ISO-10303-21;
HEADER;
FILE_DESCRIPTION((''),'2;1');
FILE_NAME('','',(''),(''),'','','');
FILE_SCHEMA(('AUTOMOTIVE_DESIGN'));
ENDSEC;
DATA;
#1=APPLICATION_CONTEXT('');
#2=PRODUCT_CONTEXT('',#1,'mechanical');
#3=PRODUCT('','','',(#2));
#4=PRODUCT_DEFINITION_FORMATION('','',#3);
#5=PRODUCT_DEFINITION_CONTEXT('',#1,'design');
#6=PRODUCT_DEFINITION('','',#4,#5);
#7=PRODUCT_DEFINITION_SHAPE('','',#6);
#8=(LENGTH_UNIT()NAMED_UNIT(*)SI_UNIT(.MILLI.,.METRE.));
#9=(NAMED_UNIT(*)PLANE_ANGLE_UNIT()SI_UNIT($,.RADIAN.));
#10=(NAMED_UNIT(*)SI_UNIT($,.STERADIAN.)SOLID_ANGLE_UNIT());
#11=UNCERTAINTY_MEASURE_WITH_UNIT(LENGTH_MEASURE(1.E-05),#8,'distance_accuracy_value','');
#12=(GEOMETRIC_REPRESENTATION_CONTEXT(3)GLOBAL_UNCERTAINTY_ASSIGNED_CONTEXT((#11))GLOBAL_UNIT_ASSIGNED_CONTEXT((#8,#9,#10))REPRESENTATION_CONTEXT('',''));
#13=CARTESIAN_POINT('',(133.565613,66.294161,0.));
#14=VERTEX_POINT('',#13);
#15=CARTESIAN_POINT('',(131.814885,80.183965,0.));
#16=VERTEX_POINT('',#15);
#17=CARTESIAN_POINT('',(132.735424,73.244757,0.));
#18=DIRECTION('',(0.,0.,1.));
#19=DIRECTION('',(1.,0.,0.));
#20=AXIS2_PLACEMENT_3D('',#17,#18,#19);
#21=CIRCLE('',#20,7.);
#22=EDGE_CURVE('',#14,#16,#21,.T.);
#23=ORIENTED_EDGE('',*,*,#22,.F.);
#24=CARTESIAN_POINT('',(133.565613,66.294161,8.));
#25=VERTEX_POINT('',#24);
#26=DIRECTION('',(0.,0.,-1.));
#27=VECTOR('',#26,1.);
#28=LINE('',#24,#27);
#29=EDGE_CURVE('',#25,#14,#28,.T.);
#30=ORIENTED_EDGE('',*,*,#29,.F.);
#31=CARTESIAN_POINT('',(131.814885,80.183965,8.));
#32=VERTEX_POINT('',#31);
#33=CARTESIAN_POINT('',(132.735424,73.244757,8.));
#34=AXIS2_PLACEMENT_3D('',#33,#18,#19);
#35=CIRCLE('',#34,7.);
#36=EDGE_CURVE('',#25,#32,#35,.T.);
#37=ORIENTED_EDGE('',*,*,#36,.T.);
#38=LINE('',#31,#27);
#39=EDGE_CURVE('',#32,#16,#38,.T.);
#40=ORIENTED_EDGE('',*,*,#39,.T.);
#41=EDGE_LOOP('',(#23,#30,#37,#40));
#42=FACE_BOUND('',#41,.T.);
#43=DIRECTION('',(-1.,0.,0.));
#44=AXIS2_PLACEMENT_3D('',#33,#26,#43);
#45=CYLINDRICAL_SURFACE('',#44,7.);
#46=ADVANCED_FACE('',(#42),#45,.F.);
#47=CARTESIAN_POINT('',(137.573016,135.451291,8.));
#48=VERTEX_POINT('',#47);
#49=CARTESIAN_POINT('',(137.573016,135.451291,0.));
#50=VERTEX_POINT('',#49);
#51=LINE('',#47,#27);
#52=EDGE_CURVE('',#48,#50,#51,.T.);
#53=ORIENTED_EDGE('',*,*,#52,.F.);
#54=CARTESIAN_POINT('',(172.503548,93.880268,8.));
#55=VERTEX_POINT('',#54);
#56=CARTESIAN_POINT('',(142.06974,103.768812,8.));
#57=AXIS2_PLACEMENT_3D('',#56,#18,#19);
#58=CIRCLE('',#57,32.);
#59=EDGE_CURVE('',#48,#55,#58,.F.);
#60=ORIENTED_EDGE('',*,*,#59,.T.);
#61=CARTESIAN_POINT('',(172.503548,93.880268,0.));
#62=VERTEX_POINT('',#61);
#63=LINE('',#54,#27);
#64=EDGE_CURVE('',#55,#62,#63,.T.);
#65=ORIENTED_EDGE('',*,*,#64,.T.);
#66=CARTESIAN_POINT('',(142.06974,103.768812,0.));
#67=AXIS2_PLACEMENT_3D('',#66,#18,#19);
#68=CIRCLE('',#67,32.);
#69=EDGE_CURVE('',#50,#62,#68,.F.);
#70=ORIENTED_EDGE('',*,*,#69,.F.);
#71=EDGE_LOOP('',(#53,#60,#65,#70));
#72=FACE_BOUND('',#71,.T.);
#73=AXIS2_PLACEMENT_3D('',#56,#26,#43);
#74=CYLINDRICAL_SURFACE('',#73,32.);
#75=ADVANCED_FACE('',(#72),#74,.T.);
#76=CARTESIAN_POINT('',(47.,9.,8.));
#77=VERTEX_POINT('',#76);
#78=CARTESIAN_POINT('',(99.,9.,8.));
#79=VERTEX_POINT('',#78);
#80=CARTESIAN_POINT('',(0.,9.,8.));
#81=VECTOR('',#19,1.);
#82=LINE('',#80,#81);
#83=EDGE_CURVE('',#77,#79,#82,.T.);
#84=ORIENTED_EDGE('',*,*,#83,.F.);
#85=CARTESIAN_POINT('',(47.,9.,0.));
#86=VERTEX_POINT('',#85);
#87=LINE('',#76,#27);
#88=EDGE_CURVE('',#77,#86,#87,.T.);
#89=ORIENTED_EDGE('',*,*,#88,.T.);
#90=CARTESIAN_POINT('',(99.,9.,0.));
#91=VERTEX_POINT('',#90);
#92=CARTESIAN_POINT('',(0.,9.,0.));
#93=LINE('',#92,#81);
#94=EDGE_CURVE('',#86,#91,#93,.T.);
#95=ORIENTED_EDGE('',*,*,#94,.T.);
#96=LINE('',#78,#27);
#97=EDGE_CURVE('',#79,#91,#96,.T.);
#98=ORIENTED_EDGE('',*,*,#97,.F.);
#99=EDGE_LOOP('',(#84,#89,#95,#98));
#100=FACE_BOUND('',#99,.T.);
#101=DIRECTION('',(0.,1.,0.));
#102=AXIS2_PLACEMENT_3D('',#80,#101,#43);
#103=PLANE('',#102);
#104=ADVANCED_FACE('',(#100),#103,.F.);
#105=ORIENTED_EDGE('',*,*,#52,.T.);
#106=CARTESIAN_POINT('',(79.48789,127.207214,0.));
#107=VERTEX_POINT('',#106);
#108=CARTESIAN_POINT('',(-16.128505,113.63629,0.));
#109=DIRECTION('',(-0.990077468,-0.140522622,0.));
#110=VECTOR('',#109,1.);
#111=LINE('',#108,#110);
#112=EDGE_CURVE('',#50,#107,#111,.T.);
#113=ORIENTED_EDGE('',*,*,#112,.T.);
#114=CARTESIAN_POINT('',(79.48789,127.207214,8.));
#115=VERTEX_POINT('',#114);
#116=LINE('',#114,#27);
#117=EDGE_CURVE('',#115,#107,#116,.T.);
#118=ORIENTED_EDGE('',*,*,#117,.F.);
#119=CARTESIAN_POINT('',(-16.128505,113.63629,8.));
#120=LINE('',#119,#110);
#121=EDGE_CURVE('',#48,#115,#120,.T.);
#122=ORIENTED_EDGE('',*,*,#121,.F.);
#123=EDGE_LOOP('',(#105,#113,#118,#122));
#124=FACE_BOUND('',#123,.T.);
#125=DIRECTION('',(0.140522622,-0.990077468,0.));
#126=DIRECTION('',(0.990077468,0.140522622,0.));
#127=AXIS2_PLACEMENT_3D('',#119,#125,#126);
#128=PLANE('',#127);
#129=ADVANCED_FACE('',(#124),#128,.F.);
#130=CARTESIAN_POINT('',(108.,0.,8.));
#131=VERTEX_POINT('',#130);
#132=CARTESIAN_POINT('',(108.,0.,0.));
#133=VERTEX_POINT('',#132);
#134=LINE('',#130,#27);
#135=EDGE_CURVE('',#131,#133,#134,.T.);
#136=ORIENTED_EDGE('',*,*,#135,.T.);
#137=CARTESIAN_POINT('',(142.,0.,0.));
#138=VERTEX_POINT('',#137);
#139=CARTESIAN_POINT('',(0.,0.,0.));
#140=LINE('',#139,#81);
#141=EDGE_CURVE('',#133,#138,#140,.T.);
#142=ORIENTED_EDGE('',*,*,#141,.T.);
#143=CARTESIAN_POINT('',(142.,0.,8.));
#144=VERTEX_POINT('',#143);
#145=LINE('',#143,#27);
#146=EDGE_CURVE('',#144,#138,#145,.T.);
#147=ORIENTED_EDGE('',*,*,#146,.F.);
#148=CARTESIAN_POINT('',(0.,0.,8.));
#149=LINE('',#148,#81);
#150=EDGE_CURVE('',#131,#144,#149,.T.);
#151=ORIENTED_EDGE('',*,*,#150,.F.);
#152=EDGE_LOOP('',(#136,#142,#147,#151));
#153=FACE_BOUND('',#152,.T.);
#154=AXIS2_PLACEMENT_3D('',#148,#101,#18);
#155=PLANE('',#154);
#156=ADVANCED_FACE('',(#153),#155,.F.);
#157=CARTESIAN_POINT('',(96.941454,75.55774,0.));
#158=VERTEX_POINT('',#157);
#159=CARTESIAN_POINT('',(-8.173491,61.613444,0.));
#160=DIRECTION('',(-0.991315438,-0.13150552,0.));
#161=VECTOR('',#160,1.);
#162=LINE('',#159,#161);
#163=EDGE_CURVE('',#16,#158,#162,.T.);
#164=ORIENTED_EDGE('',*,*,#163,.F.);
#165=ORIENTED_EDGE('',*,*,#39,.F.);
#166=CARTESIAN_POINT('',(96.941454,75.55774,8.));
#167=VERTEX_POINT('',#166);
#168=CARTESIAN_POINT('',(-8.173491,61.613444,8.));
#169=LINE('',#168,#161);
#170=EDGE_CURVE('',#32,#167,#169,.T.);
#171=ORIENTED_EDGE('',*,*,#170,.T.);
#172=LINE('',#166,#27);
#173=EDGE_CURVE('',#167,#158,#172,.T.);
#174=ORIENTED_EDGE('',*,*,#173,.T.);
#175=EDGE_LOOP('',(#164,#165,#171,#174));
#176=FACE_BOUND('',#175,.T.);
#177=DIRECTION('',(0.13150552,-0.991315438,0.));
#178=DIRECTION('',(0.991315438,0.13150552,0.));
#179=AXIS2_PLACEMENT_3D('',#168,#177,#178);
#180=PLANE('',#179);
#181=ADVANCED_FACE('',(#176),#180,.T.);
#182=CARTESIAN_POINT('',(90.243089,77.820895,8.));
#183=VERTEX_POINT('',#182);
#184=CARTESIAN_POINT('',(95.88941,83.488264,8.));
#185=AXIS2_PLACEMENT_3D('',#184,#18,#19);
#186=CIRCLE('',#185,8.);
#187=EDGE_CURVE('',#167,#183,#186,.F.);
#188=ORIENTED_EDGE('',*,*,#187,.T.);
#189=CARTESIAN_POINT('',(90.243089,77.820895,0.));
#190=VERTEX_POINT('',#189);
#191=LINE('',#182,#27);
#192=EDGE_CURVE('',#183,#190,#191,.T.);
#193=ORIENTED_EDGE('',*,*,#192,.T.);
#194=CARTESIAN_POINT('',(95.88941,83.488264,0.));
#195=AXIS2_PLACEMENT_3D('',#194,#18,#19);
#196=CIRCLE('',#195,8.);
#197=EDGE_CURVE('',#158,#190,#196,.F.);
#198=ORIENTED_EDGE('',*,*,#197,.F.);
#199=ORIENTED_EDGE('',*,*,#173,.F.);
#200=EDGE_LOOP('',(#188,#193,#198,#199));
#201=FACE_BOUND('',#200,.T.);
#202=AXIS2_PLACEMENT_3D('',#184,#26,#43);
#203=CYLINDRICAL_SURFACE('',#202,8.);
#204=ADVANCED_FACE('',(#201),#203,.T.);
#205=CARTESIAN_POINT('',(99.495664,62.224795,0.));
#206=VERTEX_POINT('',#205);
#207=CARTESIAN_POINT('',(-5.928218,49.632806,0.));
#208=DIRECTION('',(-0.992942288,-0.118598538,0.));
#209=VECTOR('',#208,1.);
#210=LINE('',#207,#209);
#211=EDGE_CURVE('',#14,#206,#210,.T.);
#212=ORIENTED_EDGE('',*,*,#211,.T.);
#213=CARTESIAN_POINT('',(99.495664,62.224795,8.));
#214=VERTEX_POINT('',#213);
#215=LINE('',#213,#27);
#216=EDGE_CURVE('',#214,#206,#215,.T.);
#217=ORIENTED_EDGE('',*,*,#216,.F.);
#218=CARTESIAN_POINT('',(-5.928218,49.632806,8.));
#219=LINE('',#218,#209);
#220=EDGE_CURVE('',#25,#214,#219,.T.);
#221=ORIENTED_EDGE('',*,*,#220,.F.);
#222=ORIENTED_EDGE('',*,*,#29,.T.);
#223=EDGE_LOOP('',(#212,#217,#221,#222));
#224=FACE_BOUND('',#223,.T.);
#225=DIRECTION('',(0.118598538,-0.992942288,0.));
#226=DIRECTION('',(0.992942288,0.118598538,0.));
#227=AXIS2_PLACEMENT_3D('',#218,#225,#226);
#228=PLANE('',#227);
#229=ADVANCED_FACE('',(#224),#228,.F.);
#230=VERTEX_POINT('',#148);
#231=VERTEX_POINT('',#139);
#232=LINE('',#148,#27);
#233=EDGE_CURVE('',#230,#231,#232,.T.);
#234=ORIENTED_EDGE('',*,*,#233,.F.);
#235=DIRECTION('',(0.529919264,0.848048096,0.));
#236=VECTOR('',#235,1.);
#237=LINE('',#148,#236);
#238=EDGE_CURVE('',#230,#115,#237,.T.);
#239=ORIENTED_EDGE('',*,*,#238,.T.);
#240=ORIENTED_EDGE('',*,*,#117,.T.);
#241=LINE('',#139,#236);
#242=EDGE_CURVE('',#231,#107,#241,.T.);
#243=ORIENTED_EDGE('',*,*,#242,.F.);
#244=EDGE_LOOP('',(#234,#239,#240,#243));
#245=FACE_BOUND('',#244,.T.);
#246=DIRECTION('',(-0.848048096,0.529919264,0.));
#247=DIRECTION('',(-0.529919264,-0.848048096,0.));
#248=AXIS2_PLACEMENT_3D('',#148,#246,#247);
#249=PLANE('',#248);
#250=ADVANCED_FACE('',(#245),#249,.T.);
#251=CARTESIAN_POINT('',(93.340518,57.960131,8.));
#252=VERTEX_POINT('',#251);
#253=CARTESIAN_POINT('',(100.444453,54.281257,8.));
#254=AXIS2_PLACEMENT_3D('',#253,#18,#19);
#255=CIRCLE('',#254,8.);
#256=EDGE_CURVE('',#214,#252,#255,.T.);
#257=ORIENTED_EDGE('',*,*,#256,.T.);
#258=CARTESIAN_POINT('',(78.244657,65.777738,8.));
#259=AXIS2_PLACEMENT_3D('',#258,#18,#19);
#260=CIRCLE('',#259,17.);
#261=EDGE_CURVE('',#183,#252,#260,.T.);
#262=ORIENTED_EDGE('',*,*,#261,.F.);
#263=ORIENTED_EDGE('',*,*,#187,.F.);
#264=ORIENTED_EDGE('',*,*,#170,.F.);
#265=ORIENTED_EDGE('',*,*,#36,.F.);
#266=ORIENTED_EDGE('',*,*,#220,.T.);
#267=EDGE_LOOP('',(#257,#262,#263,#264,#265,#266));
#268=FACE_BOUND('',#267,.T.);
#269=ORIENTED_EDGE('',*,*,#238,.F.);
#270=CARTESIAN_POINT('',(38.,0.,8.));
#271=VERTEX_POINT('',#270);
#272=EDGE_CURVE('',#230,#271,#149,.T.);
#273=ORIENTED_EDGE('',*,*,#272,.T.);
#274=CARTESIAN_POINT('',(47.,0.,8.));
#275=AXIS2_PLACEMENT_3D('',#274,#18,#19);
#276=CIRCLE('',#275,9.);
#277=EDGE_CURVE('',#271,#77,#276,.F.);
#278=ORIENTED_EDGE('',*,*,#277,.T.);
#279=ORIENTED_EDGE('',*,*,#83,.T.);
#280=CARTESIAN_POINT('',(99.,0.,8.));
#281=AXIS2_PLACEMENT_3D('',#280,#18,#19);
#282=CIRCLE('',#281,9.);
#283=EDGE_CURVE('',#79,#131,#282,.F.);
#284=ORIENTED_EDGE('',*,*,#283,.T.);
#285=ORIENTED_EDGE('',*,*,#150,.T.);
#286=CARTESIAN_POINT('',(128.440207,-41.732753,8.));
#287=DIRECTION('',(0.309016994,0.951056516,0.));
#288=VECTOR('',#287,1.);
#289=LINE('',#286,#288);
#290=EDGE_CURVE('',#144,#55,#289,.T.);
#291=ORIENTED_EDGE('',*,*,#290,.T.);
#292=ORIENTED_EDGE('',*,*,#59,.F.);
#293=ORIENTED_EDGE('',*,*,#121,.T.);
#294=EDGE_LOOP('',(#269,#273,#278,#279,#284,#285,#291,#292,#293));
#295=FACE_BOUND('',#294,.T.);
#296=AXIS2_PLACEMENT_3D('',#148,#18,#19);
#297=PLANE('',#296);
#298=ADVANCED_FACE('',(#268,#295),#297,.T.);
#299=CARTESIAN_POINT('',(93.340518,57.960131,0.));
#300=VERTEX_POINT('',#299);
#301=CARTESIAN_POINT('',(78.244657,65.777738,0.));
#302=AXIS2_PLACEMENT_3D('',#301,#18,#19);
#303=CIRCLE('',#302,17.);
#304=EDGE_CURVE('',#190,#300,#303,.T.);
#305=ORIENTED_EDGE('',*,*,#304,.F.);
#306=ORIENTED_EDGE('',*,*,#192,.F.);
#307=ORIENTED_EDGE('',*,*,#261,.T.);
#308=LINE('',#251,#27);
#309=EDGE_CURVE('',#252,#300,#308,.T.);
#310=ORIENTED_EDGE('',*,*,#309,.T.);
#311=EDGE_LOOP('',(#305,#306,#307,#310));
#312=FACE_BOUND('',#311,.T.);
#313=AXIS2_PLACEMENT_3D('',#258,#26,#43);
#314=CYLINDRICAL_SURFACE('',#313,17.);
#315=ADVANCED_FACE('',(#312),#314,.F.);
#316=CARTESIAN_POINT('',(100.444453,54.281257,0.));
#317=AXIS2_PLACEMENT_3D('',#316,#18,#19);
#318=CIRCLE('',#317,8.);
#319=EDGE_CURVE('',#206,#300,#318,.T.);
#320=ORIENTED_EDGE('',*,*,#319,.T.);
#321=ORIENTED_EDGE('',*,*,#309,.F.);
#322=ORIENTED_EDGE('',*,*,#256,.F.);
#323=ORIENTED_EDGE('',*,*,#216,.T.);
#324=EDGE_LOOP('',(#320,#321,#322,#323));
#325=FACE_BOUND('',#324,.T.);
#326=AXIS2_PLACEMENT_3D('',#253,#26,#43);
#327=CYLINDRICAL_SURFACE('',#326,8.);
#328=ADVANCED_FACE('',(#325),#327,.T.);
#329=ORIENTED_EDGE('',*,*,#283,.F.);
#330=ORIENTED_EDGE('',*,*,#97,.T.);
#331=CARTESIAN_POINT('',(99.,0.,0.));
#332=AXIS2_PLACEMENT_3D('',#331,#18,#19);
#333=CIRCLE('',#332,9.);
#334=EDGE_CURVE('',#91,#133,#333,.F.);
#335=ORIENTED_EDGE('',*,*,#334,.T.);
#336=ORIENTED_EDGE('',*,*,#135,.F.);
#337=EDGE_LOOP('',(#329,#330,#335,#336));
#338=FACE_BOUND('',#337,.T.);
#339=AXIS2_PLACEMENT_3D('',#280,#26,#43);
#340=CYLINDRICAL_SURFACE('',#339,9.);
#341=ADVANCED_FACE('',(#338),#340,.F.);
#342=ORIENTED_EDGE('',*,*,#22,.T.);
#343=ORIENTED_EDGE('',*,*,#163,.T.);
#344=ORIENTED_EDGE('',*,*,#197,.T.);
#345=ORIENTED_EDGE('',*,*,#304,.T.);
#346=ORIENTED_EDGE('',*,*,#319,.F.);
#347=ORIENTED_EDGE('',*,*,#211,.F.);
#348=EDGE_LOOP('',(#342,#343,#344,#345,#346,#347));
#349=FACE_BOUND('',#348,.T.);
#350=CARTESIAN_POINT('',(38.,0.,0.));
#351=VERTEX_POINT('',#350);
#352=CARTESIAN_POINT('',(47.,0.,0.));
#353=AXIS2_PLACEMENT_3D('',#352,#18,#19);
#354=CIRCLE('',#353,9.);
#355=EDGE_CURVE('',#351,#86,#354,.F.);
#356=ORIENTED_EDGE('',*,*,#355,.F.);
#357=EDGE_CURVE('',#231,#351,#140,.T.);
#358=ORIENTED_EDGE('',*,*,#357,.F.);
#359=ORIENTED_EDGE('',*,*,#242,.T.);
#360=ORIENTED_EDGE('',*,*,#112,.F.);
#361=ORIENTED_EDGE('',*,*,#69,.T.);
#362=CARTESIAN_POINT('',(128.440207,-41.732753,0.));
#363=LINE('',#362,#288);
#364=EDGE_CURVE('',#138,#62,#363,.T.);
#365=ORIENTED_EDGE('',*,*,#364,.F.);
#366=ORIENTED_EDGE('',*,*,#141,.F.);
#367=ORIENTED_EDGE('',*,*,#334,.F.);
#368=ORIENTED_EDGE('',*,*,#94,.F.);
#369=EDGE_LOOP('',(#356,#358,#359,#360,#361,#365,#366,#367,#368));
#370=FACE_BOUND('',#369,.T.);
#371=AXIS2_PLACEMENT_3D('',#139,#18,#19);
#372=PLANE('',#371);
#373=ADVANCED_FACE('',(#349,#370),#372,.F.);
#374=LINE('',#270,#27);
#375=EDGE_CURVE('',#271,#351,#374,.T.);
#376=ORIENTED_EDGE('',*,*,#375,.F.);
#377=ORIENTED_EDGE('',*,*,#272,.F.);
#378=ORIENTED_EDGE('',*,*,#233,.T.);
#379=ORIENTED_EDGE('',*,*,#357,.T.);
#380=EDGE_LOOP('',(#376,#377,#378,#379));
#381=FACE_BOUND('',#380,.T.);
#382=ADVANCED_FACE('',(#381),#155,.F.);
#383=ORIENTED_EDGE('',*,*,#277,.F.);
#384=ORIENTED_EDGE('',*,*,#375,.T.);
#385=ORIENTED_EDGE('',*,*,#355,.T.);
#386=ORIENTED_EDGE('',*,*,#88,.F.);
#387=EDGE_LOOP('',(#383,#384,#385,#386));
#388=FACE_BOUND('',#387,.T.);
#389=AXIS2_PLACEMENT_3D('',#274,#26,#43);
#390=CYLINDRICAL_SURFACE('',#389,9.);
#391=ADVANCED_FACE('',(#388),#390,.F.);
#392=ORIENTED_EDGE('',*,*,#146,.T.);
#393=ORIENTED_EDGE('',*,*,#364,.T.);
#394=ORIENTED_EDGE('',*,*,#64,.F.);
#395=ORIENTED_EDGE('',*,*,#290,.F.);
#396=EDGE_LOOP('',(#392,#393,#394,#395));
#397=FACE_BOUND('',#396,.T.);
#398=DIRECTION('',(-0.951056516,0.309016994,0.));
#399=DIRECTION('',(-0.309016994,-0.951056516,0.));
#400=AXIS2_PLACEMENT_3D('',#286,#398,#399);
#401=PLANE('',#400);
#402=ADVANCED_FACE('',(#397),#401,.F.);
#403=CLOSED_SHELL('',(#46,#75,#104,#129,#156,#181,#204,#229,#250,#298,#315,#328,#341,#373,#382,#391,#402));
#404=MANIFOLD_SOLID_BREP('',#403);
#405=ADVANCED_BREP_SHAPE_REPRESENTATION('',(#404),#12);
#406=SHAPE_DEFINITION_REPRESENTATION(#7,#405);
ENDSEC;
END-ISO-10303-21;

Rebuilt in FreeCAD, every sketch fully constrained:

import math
import FreeCAD as App
import Part
import Sketcher
Q = App.Units.Quantity

doc = App.newDocument("Part")
body = doc.addObject("PartDesign::Body", "Body")

# Sketch on XY plane
sketch1 = body.newObject("Sketcher::SketchObject", "Sketch")
sketch1.AttachmentSupport = (doc.getObject("XY_Plane"), [""])
sketch1.MapMode = "FlatFace"
sketch1.addGeometry(Part.LineSegment(App.Vector(79.48789, 127.207214, 0), App.Vector(37.624268, 60.211415, 0)), False)
sketch1.addGeometry(Part.LineSegment(App.Vector(37.624268, 60.211415, 0), App.Vector(0, 0, 0)), False)
sketch1.addGeometry(Part.LineSegment(App.Vector(0, 0, 0), App.Vector(38, 0, 0)), False)
sketch1.addGeometry(Part.ArcOfCircle(Part.Circle(App.Vector(47, 0, 0), App.Vector(0, 0, 1), 9), math.radians(90), math.radians(180)), False)
sketch1.addGeometry(Part.LineSegment(App.Vector(47, 9, 0), App.Vector(99, 9, 0)), False)
sketch1.addGeometry(Part.ArcOfCircle(Part.Circle(App.Vector(99, 0, 0), App.Vector(0, 0, 1), 9), math.radians(0), math.radians(90)), False)
sketch1.addGeometry(Part.LineSegment(App.Vector(108, 0, 0), App.Vector(142, 0, 0)), False)
sketch1.addGeometry(Part.LineSegment(App.Vector(142, 0, 0), App.Vector(167.339394, 77.986634, 0)), False)
sketch1.addGeometry(Part.LineSegment(App.Vector(167.339394, 77.986634, 0), App.Vector(172.503548, 93.880268, 0)), False)
sketch1.addGeometry(Part.ArcOfCircle(Part.Circle(App.Vector(142.06974, 103.768812, 0), App.Vector(0, 0, 1), 32), math.radians(-18), math.radians(98.078089)), False)
sketch1.addGeometry(Part.LineSegment(App.Vector(137.573016, 135.451291, 0), App.Vector(79.48789, 127.207214, 0)), False)
sketch1.addGeometry(Part.ArcOfCircle(Part.Circle(App.Vector(78.244657, 65.777738, 0), App.Vector(0, 0, 1), 17), math.radians(45.106589), math.radians(187.8028)), False)
sketch1.addGeometry(Part.ArcOfCircle(Part.Circle(App.Vector(95.88941, 83.488264, 0), App.Vector(0, 0, 1), 8), math.radians(-134.893411), math.radians(-82.443401)), False)
sketch1.addGeometry(Part.LineSegment(App.Vector(96.941454, 75.55774, 0), App.Vector(131.814885, 80.183965, 0)), False)
sketch1.addGeometry(Part.ArcOfCircle(Part.Circle(App.Vector(132.735424, 73.244757, 0), App.Vector(0, 0, 1), 7), math.radians(7.8028), math.radians(97.556599)), False)
sketch1.addGeometry(Part.ArcOfCircle(Part.Circle(App.Vector(132.735424, 73.244757, 0), App.Vector(0, 0, 1), 7), math.radians(-83.188773), math.radians(7.8028)), False)
sketch1.addGeometry(Part.LineSegment(App.Vector(133.565613, 66.294161, 0), App.Vector(99.495664, 62.224795, 0)), False)
sketch1.addGeometry(Part.ArcOfCircle(Part.Circle(App.Vector(100.444453, 54.281257, 0), App.Vector(0, 0, 1), 8), math.radians(96.811227), math.radians(152.621973)), False)
sketch1.addGeometry(Part.ArcOfCircle(Part.Circle(App.Vector(78.244657, 65.777738, 0), App.Vector(0, 0, 1), 17), math.radians(-172.1972), math.radians(-27.378027)), False)
sketch1.addConstraint(Sketcher.Constraint("Coincident", 0, 2, 1, 1))
sketch1.addConstraint(Sketcher.Constraint("Coincident", 1, 2, 2, 1))
sketch1.addConstraint(Sketcher.Constraint("Coincident", 2, 2, 3, 2))
sketch1.addConstraint(Sketcher.Constraint("Tangent", 3, 1, 4, 1))
sketch1.addConstraint(Sketcher.Constraint("Tangent", 4, 2, 5, 2))
sketch1.addConstraint(Sketcher.Constraint("Coincident", 5, 1, 6, 1))
sketch1.addConstraint(Sketcher.Constraint("Coincident", 6, 2, 7, 1))
sketch1.addConstraint(Sketcher.Constraint("Coincident", 7, 2, 8, 1))
sketch1.addConstraint(Sketcher.Constraint("Tangent", 8, 2, 9, 1))
sketch1.addConstraint(Sketcher.Constraint("Tangent", 9, 2, 10, 1))
sketch1.addConstraint(Sketcher.Constraint("Coincident", 10, 2, 0, 1))
sketch1.addConstraint(Sketcher.Constraint("Tangent", 11, 1, 12, 1))
sketch1.addConstraint(Sketcher.Constraint("Tangent", 12, 2, 13, 1))
sketch1.addConstraint(Sketcher.Constraint("Tangent", 13, 2, 14, 2))
sketch1.addConstraint(Sketcher.Constraint("Tangent", 14, 1, 15, 2))
sketch1.addConstraint(Sketcher.Constraint("Tangent", 15, 1, 16, 1))
sketch1.addConstraint(Sketcher.Constraint("Tangent", 16, 2, 17, 1))
sketch1.addConstraint(Sketcher.Constraint("Tangent", 17, 2, 18, 2))
sketch1.addConstraint(Sketcher.Constraint("Tangent", 18, 1, 11, 2))
sketch1.addConstraint(Sketcher.Constraint("Horizontal", 2))
sketch1.addConstraint(Sketcher.Constraint("Horizontal", 4))
sketch1.addConstraint(Sketcher.Constraint("Horizontal", 6))
sketch1.addConstraint(Sketcher.Constraint("Coincident", 1, 2, -1, 1))
sketch1.addConstraint(Sketcher.Constraint("Equal", 3, 5))
sketch1.addConstraint(Sketcher.Constraint("Equal", 14, 15))
sketch1.addConstraint(Sketcher.Constraint("Equal", 12, 17))
sketch1.addConstraint(Sketcher.Constraint("Equal", 11, 18))
sketch1.addConstraint(Sketcher.Constraint("PointOnObject", 3, 3, -1))
sketch1.addConstraint(Sketcher.Constraint("PointOnObject", 5, 1, -1))
sketch1.addConstraint(Sketcher.Constraint("Parallel", 0, 1))
sketch1.addConstraint(Sketcher.Constraint("Parallel", 7, 8))
sketch1.addConstraint(Sketcher.Constraint("Radius", 3, 9.0))
sketch1.addConstraint(Sketcher.Constraint("Radius", 9, 32.0))
sketch1.addConstraint(Sketcher.Constraint("Radius", 11, 17.0))
sketch1.addConstraint(Sketcher.Constraint("Radius", 12, 8.0))
sketch1.addConstraint(Sketcher.Constraint("Radius", 14, 7.0))
sketch1.addConstraint(Sketcher.Constraint("DistanceX", 2, 1, 2, 2, 38.0))
sketch1.addConstraint(Sketcher.Constraint("DistanceX", 4, 1, 4, 2, 52.0))
sketch1.addConstraint(Sketcher.Constraint("DistanceX", 6, 1, 6, 2, 34.0))
sketch1.addConstraint(Sketcher.Constraint("Angle", 0, Q("-122 deg")))
sketch1.addConstraint(Sketcher.Constraint("Angle", 7, Q("72 deg")))
sketch1.addConstraint(Sketcher.Constraint("Distance", 0, 79.0))
sketch1.addConstraint(Sketcher.Constraint("Distance", 1, 71.0))
sketch1.addConstraint(Sketcher.Constraint("Distance", 7, 82.0))
sketch1.addConstraint(Sketcher.Constraint("DistanceY", 18, 3, 12, 2, 9.780002))
sketch1.addConstraint(Sketcher.Constraint("DistanceX", 12, 2, 17, 3, 3.502999))
sketch1.addConstraint(Sketcher.Constraint("DistanceX", 15, 1, 14, 1, 6.104999))
sketch1.addConstraint(Sketcher.Constraint("DistanceY", 17, 3, 14, 3, 18.963501))
sketch1.addConstraint(Sketcher.Constraint("DistanceY", 16, 2, 11, 1, 15.596101))
sketch1.addConstraint(Sketcher.Constraint("DistanceX", 18, 1, 11, 3, 16.842601))
sketch1.addConstraint(Sketcher.Constraint("DistanceX", -1, 1, 9, 3, 142.06974))
sketch1.addConstraint(Sketcher.Constraint("DistanceY", -1, 1, 11, 3, 65.777738))
sketch1.addConstraint(Sketcher.Constraint("DistanceX", -1, 1, 12, 3, 95.88941))
pad1 = body.newObject("PartDesign::Pad", "Pad")
pad1.Profile = sketch1
pad1.Length = 8

doc.recompute()
